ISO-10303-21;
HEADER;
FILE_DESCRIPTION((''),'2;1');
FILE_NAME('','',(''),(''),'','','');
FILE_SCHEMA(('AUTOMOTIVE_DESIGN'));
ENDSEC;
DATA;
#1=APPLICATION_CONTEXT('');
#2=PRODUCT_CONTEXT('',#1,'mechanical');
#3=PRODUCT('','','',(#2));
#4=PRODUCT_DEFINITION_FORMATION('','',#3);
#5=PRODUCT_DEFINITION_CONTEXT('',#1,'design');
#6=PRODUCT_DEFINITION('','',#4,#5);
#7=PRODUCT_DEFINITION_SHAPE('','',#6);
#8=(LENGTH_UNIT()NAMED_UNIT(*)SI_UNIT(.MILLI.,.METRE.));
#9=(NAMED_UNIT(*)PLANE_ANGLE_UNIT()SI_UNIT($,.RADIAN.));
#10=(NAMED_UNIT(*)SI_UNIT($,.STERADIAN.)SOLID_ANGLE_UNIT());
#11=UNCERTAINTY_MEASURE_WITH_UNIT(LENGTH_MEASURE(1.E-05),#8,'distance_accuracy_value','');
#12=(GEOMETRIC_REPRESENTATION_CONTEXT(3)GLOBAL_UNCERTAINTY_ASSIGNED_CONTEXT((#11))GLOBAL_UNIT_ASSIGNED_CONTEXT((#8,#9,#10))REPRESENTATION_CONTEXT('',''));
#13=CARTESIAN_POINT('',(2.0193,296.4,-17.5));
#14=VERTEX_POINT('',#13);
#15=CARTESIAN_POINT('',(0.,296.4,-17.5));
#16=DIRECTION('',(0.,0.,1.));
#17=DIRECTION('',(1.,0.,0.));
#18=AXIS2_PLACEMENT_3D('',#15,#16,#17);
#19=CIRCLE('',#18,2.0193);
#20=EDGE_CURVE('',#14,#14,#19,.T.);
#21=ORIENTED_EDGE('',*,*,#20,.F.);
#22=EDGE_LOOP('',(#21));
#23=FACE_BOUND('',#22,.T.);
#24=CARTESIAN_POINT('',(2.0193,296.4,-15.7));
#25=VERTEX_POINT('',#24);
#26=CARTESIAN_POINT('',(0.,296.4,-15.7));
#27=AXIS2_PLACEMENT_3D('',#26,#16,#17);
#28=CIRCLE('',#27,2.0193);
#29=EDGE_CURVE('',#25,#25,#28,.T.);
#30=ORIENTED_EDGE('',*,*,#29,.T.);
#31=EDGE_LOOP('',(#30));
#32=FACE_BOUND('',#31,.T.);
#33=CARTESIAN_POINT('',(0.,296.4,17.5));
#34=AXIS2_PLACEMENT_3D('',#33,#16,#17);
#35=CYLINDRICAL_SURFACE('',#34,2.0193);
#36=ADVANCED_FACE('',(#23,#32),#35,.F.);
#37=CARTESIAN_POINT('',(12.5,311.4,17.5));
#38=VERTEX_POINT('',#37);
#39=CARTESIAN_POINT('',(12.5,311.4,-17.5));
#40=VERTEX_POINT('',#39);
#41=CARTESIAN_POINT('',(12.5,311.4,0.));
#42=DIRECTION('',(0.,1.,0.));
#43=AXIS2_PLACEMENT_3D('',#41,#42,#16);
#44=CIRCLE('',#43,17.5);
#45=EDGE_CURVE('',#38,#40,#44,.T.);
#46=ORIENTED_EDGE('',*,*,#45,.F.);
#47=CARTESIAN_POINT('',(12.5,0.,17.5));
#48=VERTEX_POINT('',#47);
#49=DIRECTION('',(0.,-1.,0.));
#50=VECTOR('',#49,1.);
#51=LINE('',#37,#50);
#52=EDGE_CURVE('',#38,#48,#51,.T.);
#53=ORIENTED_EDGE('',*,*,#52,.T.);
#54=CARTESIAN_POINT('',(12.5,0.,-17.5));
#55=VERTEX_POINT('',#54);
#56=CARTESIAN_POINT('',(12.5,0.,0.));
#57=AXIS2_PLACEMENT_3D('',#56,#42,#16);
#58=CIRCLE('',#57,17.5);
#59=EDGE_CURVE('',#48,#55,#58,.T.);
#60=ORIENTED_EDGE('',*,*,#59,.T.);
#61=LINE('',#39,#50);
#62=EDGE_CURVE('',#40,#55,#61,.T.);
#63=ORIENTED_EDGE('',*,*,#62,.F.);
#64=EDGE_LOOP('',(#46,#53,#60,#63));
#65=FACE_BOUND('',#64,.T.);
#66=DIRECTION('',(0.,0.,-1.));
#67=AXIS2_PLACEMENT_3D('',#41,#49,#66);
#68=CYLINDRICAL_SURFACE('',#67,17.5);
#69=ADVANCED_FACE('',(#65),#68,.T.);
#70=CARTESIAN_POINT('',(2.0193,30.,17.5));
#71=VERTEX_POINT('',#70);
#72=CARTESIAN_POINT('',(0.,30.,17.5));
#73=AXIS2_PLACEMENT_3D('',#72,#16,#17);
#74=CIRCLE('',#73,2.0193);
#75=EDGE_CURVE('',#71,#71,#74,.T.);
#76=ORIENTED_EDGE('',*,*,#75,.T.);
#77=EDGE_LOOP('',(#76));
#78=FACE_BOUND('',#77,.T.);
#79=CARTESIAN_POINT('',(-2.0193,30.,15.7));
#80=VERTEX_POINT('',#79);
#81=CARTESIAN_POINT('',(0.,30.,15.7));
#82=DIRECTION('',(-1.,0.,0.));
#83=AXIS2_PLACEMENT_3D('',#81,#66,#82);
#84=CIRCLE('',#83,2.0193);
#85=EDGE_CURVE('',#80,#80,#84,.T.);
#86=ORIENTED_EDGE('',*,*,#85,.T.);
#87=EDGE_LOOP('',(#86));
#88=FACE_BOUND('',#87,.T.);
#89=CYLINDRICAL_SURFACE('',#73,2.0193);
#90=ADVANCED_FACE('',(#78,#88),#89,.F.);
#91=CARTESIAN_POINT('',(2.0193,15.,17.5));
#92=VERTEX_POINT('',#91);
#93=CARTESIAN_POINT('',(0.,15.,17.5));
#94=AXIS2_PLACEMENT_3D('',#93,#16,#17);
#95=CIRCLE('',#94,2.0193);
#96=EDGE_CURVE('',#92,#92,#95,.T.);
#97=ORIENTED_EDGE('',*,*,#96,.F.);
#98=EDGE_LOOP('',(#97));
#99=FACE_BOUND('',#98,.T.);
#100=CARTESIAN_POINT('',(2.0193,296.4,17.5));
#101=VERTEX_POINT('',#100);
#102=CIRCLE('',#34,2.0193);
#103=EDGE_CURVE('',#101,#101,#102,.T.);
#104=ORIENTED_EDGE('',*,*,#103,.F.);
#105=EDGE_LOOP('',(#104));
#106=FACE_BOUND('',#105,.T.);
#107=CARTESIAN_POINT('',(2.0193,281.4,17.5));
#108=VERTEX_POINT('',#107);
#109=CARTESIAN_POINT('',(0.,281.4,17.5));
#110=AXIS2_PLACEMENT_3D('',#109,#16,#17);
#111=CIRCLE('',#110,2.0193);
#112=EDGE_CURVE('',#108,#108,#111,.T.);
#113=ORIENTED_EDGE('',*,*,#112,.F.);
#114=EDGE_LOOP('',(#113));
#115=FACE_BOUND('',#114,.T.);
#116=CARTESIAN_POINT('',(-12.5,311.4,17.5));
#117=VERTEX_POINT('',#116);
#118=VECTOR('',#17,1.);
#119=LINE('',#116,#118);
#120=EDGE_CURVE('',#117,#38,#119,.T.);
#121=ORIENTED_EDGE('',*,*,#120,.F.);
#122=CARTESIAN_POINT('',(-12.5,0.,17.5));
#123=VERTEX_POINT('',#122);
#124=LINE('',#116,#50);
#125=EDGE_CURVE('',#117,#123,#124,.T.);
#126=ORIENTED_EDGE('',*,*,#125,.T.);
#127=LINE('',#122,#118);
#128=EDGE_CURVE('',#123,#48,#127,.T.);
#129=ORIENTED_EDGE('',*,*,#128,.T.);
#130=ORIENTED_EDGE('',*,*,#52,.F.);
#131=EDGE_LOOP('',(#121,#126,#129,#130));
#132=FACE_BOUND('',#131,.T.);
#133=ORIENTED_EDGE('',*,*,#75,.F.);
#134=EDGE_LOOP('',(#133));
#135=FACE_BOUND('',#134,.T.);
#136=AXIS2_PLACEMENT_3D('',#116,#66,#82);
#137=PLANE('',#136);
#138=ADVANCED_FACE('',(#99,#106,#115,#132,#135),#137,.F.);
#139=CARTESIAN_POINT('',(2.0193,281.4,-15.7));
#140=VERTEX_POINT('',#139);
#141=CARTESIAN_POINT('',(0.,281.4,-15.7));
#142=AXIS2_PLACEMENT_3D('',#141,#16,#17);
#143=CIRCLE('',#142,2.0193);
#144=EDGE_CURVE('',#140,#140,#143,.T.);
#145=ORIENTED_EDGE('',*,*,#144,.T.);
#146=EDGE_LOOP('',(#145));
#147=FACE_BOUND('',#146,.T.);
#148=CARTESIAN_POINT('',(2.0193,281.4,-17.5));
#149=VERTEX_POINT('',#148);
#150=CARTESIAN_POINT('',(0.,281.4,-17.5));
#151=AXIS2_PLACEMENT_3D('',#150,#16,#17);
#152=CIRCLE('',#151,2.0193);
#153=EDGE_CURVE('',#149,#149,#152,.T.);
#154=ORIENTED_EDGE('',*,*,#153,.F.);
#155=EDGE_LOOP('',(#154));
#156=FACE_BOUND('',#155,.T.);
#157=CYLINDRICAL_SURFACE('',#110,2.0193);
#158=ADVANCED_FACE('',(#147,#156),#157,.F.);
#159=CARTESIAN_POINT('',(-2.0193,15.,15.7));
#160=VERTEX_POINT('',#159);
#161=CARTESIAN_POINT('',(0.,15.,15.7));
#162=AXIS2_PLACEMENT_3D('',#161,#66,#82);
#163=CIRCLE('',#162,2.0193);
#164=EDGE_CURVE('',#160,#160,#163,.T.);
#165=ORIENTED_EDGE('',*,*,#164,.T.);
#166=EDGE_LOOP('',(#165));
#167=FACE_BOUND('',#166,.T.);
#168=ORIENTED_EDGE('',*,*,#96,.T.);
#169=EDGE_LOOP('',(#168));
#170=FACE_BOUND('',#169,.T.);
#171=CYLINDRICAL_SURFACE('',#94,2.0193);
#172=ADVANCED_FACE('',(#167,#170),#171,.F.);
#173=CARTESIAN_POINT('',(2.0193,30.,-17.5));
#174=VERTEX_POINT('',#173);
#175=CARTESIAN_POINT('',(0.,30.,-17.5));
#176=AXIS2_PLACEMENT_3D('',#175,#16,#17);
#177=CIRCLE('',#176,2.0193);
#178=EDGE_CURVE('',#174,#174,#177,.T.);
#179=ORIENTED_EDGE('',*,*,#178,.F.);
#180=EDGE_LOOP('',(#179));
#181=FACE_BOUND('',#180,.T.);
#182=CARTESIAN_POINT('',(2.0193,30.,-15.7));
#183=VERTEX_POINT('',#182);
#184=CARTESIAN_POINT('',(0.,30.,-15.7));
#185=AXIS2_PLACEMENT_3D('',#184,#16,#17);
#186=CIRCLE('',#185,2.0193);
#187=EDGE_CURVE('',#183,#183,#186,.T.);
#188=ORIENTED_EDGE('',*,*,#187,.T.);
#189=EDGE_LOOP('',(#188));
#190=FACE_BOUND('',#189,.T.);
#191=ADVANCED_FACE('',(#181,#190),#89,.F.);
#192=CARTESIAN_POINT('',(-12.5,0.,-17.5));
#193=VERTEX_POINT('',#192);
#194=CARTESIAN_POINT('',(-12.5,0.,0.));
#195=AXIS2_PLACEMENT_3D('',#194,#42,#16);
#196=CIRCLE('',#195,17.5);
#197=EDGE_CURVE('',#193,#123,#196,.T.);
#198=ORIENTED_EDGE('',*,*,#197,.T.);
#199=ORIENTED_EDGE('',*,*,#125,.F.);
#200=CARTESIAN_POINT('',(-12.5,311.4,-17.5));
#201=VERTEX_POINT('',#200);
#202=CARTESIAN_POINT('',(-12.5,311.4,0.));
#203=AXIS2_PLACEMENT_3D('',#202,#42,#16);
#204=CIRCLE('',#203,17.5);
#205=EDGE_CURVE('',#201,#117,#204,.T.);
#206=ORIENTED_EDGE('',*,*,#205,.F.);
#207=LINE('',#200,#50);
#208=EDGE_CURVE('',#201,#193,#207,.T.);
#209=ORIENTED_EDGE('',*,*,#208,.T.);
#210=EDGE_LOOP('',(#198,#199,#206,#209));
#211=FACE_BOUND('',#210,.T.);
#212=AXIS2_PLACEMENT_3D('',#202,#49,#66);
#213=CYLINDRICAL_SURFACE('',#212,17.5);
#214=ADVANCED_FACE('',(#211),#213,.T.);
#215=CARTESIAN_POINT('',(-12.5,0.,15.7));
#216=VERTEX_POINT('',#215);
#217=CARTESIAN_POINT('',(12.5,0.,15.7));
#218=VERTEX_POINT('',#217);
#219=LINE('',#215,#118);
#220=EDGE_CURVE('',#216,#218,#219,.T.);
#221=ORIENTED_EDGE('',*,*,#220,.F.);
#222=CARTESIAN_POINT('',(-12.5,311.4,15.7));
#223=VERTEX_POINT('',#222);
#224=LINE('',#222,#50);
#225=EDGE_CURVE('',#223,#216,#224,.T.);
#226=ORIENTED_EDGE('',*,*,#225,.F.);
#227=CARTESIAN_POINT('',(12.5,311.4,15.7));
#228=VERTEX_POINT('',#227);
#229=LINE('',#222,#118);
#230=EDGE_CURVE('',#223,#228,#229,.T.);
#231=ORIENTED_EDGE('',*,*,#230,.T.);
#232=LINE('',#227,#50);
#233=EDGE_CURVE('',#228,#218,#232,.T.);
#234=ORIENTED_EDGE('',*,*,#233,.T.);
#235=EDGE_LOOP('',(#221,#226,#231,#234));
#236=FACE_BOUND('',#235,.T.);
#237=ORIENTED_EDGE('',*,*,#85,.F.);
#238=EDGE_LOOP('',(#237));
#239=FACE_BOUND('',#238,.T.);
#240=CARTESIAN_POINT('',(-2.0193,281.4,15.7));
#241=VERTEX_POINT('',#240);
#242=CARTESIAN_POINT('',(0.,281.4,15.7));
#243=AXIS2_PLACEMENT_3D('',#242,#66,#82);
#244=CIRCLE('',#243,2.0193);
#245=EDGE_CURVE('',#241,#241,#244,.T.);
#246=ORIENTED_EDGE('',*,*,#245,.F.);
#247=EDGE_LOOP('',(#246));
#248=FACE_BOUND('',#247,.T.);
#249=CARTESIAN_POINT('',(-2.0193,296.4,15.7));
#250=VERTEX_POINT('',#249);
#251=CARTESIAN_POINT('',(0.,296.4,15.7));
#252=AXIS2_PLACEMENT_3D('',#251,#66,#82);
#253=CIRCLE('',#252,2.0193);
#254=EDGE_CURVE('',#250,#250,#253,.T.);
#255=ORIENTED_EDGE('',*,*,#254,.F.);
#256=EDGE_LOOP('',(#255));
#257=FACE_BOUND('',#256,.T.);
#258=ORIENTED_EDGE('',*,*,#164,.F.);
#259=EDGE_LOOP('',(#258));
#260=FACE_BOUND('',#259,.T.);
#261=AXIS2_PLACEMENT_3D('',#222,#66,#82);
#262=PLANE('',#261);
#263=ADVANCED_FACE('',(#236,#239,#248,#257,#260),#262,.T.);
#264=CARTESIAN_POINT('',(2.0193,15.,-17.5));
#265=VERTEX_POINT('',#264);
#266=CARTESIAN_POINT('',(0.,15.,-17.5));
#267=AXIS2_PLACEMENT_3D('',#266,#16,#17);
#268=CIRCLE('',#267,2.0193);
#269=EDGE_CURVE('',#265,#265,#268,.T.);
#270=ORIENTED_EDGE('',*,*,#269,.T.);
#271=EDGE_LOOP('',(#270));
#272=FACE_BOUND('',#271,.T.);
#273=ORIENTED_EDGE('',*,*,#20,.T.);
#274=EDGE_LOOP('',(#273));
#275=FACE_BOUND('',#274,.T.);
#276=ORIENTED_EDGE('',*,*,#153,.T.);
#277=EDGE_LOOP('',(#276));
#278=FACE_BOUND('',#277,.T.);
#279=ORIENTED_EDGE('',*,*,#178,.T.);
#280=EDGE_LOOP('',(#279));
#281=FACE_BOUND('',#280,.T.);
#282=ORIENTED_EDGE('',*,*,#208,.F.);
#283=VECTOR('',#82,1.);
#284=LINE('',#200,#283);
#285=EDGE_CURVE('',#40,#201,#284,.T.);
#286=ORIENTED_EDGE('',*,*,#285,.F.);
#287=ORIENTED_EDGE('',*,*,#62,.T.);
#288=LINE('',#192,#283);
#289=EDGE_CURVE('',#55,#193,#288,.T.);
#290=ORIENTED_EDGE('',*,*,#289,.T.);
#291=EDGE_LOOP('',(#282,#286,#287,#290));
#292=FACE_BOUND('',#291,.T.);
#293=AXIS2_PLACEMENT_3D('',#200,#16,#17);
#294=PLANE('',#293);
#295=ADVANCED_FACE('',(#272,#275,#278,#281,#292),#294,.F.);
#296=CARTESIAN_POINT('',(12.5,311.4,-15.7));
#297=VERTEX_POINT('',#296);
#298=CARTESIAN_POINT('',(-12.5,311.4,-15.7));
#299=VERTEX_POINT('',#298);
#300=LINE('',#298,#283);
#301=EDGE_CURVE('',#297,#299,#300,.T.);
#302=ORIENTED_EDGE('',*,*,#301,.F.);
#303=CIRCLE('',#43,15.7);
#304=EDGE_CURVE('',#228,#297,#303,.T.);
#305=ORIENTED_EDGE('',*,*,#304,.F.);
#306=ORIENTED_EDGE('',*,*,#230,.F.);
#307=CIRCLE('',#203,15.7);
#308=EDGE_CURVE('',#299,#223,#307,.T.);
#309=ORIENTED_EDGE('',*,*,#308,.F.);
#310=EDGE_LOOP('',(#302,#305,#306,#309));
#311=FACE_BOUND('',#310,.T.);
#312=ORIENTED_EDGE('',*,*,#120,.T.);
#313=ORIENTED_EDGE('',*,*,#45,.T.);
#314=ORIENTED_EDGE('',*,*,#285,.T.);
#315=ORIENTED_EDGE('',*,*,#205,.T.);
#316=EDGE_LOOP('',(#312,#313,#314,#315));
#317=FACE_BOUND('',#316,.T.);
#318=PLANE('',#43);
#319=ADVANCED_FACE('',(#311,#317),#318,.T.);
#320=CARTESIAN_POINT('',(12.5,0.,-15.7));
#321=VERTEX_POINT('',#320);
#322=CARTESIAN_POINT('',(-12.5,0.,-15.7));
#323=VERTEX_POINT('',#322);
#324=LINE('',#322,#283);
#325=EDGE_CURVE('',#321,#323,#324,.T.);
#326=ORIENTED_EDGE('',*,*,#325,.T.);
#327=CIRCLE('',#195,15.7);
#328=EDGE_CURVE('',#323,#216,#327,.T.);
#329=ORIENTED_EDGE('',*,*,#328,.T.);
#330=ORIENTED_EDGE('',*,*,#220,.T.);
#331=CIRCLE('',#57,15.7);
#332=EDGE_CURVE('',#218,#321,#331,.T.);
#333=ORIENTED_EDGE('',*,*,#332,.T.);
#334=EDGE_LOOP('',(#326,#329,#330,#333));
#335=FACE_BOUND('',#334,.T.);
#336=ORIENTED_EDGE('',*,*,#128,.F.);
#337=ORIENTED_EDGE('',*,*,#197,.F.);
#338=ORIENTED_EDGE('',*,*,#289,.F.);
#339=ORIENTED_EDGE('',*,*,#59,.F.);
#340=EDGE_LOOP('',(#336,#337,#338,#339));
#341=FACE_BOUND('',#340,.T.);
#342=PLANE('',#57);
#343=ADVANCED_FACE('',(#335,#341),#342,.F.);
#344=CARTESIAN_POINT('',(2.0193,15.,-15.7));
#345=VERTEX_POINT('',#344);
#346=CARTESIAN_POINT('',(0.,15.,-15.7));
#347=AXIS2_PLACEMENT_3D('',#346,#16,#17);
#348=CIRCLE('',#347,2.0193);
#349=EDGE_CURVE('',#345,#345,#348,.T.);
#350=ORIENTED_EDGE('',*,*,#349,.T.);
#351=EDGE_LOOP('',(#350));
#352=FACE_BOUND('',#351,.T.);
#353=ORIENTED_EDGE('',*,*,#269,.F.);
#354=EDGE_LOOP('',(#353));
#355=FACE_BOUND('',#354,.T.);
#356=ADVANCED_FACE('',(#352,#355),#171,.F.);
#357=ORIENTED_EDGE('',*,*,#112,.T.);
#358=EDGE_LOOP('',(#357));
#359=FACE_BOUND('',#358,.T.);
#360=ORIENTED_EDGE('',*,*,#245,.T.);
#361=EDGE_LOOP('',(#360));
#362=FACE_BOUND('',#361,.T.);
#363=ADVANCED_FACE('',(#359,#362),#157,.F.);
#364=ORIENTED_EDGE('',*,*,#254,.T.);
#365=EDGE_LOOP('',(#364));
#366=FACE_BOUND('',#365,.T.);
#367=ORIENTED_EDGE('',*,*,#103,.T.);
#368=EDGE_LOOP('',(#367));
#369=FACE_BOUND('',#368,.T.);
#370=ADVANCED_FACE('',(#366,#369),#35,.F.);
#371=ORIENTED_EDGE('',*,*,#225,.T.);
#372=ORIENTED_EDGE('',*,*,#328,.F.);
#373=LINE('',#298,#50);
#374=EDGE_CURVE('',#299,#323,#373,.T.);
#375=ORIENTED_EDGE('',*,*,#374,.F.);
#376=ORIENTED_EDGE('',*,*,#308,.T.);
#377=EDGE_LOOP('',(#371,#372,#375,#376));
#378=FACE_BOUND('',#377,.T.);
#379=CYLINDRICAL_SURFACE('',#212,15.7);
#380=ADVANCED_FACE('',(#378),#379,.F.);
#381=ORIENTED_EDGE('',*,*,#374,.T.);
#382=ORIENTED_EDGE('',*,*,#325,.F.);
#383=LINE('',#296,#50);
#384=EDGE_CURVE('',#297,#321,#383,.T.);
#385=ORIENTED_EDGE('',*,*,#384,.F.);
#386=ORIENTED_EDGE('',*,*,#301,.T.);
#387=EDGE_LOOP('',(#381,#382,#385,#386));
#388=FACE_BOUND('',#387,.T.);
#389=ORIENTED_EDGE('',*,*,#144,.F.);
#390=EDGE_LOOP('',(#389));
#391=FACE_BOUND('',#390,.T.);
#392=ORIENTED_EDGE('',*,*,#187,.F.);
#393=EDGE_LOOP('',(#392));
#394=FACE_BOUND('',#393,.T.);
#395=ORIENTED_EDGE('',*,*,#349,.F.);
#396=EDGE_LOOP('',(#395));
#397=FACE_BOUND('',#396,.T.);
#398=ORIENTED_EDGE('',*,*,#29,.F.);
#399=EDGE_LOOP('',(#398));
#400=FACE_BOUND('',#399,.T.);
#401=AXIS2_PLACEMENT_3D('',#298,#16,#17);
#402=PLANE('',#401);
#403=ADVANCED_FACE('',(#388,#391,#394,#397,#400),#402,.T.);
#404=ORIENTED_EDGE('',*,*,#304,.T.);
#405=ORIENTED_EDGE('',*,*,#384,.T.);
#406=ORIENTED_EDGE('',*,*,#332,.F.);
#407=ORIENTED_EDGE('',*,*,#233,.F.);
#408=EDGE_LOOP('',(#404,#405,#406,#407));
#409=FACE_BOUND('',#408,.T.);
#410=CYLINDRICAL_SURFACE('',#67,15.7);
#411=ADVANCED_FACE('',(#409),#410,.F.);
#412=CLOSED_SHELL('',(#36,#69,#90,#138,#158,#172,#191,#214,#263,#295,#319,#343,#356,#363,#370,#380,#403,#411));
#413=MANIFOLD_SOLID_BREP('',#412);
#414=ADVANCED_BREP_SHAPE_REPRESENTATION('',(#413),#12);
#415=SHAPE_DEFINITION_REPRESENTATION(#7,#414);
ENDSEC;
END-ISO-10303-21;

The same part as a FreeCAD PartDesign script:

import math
import FreeCAD as App
import Part
import Sketcher

V = App.Vector

doc = App.newDocument("Part")
body = doc.addObject("PartDesign::Body", "Body")

# Sketch on XZ plane
sketch1 = body.newObject("Sketcher::SketchObject", "Sketch")
sketch1.AttachmentSupport = (doc.getObject("XZ_Plane"), [""])
sketch1.MapMode = "FlatFace"
sketch1.addGeometry([
    Part.LineSegment(V(12, -18, 0), V(-12, -18, 0)),  # 0
    Part.ArcOfCircle(Part.Circle(V(-12, 0, 0), V(0, 0, 1), 18), math.radians(90), math.radians(270)),  # 1
    Part.LineSegment(V(-12, 18, 0), V(12, 18, 0)),  # 2
    Part.ArcOfCircle(Part.Circle(V(12, 0, 0), V(0, 0, 1), 18), math.radians(-90), math.radians(90)),  # 3
    Part.LineSegment(V(-12, -16, 0), V(12, -16, 0)),  # 4
    Part.ArcOfCircle(Part.Circle(V(12, 0, 0), V(0, 0, 1), 16), math.radians(-90), math.radians(90)),  # 5
    Part.LineSegment(V(12, 16, 0), V(-12, 16, 0)),  # 6
    Part.ArcOfCircle(Part.Circle(V(-12, 0, 0), V(0, 0, 1), 16), math.radians(90), math.radians(270)),  # 7
], False)
sketch1.addConstraint([
    Sketcher.Constraint("Tangent", 0, 2, 1, 2),
    Sketcher.Constraint("Tangent", 1, 1, 2, 1),
    Sketcher.Constraint("Tangent", 2, 2, 3, 2),
    Sketcher.Constraint("Tangent", 3, 1, 0, 1),
    Sketcher.Constraint("Tangent", 4, 2, 5, 1),
    Sketcher.Constraint("Tangent", 5, 2, 6, 1),
    Sketcher.Constraint("Tangent", 6, 2, 7, 1),
    Sketcher.Constraint("Tangent", 7, 2, 4, 1),
    Sketcher.Constraint("Horizontal", 0),
    Sketcher.Constraint("Horizontal", 2),
    Sketcher.Constraint("Horizontal", 4),
    Sketcher.Constraint("Horizontal", 6),
    Sketcher.Constraint("Coincident", 5, 3, 3, 3),
    Sketcher.Constraint("Symmetric", 1, 3, 3, 3, -1, 1),
    Sketcher.Constraint("Vertical", 7, 3, 0, 2),
    Sketcher.Constraint("Radius", 1, 17.5),
    Sketcher.Constraint("Radius", 5, 15.7),
    Sketcher.Constraint("DistanceX", 0, 2, 0, 1, 25.0),
])
pad1 = body.newObject("PartDesign::Pad", "Pad")
pad1.Profile = sketch1
pad1.Length = 311.4
pad1.Reversed = True

# Sketch on XY plane
sketch2 = body.newObject("Sketcher::SketchObject", "Sketch001")
sketch2.AttachmentSupport = (doc.getObject("XY_Plane"), [""])
sketch2.MapMode = "FlatFace"
sketch2.AttachmentOffset = App.Placement(V(0, 0, 17.5), App.Rotation())
sketch2.addGeometry([
    Part.Circle(V(0, 15, 0), V(0, 0, 1), 2),
    Part.Circle(V(0, 30, 0), V(0, 0, 1), 2),
    Part.Circle(V(0, 296.4, 0), V(0, 0, 1), 2),
    Part.Circle(V(0, 281.4, 0), V(0, 0, 1), 2),
], False)
sketch2.addConstraint([
    Sketcher.Constraint("Equal", 0, 1),
    Sketcher.Constraint("Equal", 1, 2),
    Sketcher.Constraint("Equal", 2, 3),
    Sketcher.Constraint("PointOnObject", 0, 3, -2),
    Sketcher.Constraint("PointOnObject", 1, 3, -2),
    Sketcher.Constraint("PointOnObject", 2, 3, -2),
    Sketcher.Constraint("PointOnObject", 3, 3, -2),
    Sketcher.Constraint("DistanceY", -1, 1, 0, 3, 15.0),
    Sketcher.Constraint("DistanceY", -1, 1, 1, 3, 30.0),
    Sketcher.Constraint("DistanceY", 3, 3, 2, 3, 15.0),
    Sketcher.Constraint("Diameter", 0, 4.0386),
    Sketcher.Constraint("DistanceY", -1, 1, 2, 3, 296.4),
])
doc.recompute()
hole = body.newObject("PartDesign::Hole", "Hole")
hole.Profile = sketch2
hole.ThreadType = "None"
hole.Diameter = 4.0386
hole.DepthType = "ThroughAll"

doc.recompute()
